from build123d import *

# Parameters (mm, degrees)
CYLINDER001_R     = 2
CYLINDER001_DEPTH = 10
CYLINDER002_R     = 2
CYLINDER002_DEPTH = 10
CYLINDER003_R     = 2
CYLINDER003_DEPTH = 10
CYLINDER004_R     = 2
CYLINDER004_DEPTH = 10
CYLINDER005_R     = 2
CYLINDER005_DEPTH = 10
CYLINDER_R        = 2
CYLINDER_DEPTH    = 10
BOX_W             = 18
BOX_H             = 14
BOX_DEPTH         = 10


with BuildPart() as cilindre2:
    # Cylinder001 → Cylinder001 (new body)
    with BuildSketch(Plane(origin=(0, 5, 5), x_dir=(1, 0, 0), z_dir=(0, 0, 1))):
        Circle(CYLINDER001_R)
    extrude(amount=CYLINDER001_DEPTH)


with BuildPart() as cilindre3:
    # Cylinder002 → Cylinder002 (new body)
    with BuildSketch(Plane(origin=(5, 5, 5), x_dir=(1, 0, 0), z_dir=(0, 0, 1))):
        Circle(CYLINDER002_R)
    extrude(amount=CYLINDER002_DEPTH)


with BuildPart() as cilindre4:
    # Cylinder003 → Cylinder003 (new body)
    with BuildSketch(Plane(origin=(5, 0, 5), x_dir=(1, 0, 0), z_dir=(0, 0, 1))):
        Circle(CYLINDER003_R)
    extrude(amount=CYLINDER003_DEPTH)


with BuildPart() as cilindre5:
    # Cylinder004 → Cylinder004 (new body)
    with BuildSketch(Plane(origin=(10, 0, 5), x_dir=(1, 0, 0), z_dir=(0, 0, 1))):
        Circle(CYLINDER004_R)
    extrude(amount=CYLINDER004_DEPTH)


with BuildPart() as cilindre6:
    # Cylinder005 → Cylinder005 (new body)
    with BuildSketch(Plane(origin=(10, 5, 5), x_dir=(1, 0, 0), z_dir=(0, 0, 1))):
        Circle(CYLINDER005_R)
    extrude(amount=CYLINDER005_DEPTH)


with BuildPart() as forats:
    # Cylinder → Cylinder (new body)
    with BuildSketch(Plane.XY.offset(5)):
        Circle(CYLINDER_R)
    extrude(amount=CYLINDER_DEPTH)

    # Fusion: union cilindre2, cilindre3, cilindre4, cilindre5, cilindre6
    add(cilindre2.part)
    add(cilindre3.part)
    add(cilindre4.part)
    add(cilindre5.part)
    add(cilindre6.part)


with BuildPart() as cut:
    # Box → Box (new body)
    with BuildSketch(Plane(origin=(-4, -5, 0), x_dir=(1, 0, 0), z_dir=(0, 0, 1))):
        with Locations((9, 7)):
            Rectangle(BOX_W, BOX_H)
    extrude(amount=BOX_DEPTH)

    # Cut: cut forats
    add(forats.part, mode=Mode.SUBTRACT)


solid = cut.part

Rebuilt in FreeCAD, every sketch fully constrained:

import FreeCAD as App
import Part
import Sketcher
from FreeCAD import Vector


def add_polygon(sketch, points):
    """Adds a closed chain of lines whose ends are joined by coincident constraints."""
    first, n = sketch.GeometryCount, len(points)
    for a, b in zip(points, points[1:] + points[:1]):
        sketch.addGeometry(Part.LineSegment(App.Vector(*a, 0), App.Vector(*b, 0)), False)
    for i in range(n):
        sketch.addConstraint(Sketcher.Constraint("Coincident", first + i, 2, first + (i + 1) % n, 1))

doc = App.newDocument("Part")
body = doc.addObject("PartDesign::Body", "Body")

# Sketch on XY plane
sketch1 = body.newObject("Sketcher::SketchObject", "Sketch")
sketch1.AttachmentSupport = (doc.getObject("XY_Plane"), [""])
sketch1.MapMode = "FlatFace"
sketch1.AttachmentOffset = App.Placement(Vector(0, 0, 5), App.Rotation())
sketch1.addGeometry(Part.Circle(Vector(0, 5, 0), Vector(0, 0, 1), 2), False)
sketch1.addConstraint([
    Sketcher.Constraint("PointOnObject", 0, 3, -2),
    Sketcher.Constraint("Diameter", 0, 4.0),
    Sketcher.Constraint("DistanceY", -1, 1, 0, 3, 5.0),
])
pad1 = body.newObject("PartDesign::Pad", "Pad")
pad1.Profile = sketch1
pad1.Length = 10
body2 = doc.addObject("PartDesign::Body", "Body001")

# Sketch on XY plane
sketch2 = body2.newObject("Sketcher::SketchObject", "Sketch001")
sketch2.AttachmentSupport = (doc.getObject("XY_Plane001"), [""])
sketch2.MapMode = "FlatFace"
sketch2.AttachmentOffset = App.Placement(Vector(0, 0, 5), App.Rotation())
sketch2.addGeometry(Part.Circle(Vector(5, 5, 0), Vector(0, 0, 1), 2), False)
sketch2.addConstraint([
    Sketcher.Constraint("Diameter", 0, 4.0),
    Sketcher.Constraint("DistanceX", -1, 1, 0, 3, 5.0),
    Sketcher.Constraint("DistanceY", -1, 1, 0, 3, 5.0),
])
pad2 = body2.newObject("PartDesign::Pad", "Pad001")
pad2.Profile = sketch2
pad2.Length = 10
body3 = doc.addObject("PartDesign::Body", "Body002")

# Sketch on XY plane
sketch3 = body3.newObject("Sketcher::SketchObject", "Sketch002")
sketch3.AttachmentSupport = (doc.getObject("XY_Plane002"), [""])
sketch3.MapMode = "FlatFace"
sketch3.AttachmentOffset = App.Placement(Vector(0, 0, 5), App.Rotation())
sketch3.addGeometry(Part.Circle(Vector(5, 0, 0), Vector(0, 0, 1), 2), False)
sketch3.addConstraint([
    Sketcher.Constraint("PointOnObject", 0, 3, -1),
    Sketcher.Constraint("Diameter", 0, 4.0),
    Sketcher.Constraint("DistanceX", -1, 1, 0, 3, 5.0),
])
pad3 = body3.newObject("PartDesign::Pad", "Pad002")
pad3.Profile = sketch3
pad3.Length = 10
body4 = doc.addObject("PartDesign::Body", "Body003")

# Sketch on XY plane
sketch4 = body4.newObject("Sketcher::SketchObject", "Sketch003")
sketch4.AttachmentSupport = (doc.getObject("XY_Plane003"), [""])
sketch4.MapMode = "FlatFace"
sketch4.AttachmentOffset = App.Placement(Vector(0, 0, 5), App.Rotation())
sketch4.addGeometry(Part.Circle(Vector(10, 0, 0), Vector(0, 0, 1), 2), False)
sketch4.addConstraint([
    Sketcher.Constraint("PointOnObject", 0, 3, -1),
    Sketcher.Constraint("Diameter", 0, 4.0),
    Sketcher.Constraint("DistanceX", -1, 1, 0, 3, 10.0),
])
pad4 = body4.newObject("PartDesign::Pad", "Pad003")
pad4.Profile = sketch4
pad4.Length = 10
body5 = doc.addObject("PartDesign::Body", "Body004")

# Sketch on XY plane
sketch5 = body5.newObject("Sketcher::SketchObject", "Sketch004")
sketch5.AttachmentSupport = (doc.getObject("XY_Plane004"), [""])
sketch5.MapMode = "FlatFace"
sketch5.AttachmentOffset = App.Placement(Vector(0, 0, 5), App.Rotation())
sketch5.addGeometry(Part.Circle(Vector(10, 5, 0), Vector(0, 0, 1), 2), False)
sketch5.addConstraint([
    Sketcher.Constraint("Diameter", 0, 4.0),
    Sketcher.Constraint("DistanceX", -1, 1, 0, 3, 10.0),
    Sketcher.Constraint("DistanceY", -1, 1, 0, 3, 5.0),
])
pad5 = body5.newObject("PartDesign::Pad", "Pad004")
pad5.Profile = sketch5
pad5.Length = 10
body6 = doc.addObject("PartDesign::Body", "Body005")
body6.AllowCompound = True

# Sketch on XY plane
sketch6 = body6.newObject("Sketcher::SketchObject", "Sketch005")
sketch6.AttachmentSupport = (doc.getObject("XY_Plane005"), [""])
sketch6.MapMode = "FlatFace"
sketch6.AttachmentOffset = App.Placement(Vector(0, 0, 5), App.Rotation())
sketch6.addGeometry(Part.Circle(Vector(0, 0, 0), Vector(0, 0, 1), 2), False)
sketch6.addConstraint([
    Sketcher.Constraint("Coincident", 0, 3, -1, 1),
    Sketcher.Constraint("Diameter", 0, 4.0),
])
pad6 = body6.newObject("PartDesign::Pad", "Pad005")
pad6.Profile = sketch6
pad6.Length = 10
doc.recompute()

boolean = body6.newObject("PartDesign::Boolean", "Boolean")
boolean.Type = "Fuse"
boolean.addObjects([body])
doc.recompute()

boolean2 = body6.newObject("PartDesign::Boolean", "Boolean001")
boolean2.Type = "Fuse"
boolean2.addObjects([body2])
doc.recompute()

boolean3 = body6.newObject("PartDesign::Boolean", "Boolean002")
boolean3.Type = "Fuse"
boolean3.addObjects([body3])
doc.recompute()

boolean4 = body6.newObject("PartDesign::Boolean", "Boolean003")
boolean4.Type = "Fuse"
boolean4.addObjects([body4])
doc.recompute()

boolean5 = body6.newObject("PartDesign::Boolean", "Boolean004")
boolean5.Type = "Fuse"
boolean5.addObjects([body5])
body7 = doc.addObject("PartDesign::Body", "Body006")

# Sketch on XY plane
sketch7 = body7.newObject("Sketcher::SketchObject", "Sketch006")
sketch7.AttachmentSupport = (doc.getObject("XY_Plane006"), [""])
sketch7.MapMode = "FlatFace"
add_polygon(sketch7, [(-4, 9), (-4, -5), (14, -5), (14, 9)])  # lines 0-3
sketch7.addConstraint([
    Sketcher.Constraint("Vertical", 0),
    Sketcher.Constraint("Horizontal", 1),
    Sketcher.Constraint("Vertical", 2),
    Sketcher.Constraint("Horizontal", 3),
    Sketcher.Constraint("DistanceX", 1, 1, 1, 2, 18.0),
    Sketcher.Constraint("DistanceY", 0, 2, 0, 1, 14.0),
    Sketcher.Constraint("DistanceX", 0, 2, -1, 1, 4.0),
    Sketcher.Constraint("DistanceY", 0, 2, -1, 1, 5.0),
])
pad7 = body7.newObject("PartDesign::Pad", "Pad006")
pad7.Profile = sketch7
pad7.Length = 10
doc.recompute()

boolean6 = body7.newObject("PartDesign::Boolean", "Boolean005")
boolean6.Type = "Cut"
boolean6.addObjects([body6])

doc.recompute()
